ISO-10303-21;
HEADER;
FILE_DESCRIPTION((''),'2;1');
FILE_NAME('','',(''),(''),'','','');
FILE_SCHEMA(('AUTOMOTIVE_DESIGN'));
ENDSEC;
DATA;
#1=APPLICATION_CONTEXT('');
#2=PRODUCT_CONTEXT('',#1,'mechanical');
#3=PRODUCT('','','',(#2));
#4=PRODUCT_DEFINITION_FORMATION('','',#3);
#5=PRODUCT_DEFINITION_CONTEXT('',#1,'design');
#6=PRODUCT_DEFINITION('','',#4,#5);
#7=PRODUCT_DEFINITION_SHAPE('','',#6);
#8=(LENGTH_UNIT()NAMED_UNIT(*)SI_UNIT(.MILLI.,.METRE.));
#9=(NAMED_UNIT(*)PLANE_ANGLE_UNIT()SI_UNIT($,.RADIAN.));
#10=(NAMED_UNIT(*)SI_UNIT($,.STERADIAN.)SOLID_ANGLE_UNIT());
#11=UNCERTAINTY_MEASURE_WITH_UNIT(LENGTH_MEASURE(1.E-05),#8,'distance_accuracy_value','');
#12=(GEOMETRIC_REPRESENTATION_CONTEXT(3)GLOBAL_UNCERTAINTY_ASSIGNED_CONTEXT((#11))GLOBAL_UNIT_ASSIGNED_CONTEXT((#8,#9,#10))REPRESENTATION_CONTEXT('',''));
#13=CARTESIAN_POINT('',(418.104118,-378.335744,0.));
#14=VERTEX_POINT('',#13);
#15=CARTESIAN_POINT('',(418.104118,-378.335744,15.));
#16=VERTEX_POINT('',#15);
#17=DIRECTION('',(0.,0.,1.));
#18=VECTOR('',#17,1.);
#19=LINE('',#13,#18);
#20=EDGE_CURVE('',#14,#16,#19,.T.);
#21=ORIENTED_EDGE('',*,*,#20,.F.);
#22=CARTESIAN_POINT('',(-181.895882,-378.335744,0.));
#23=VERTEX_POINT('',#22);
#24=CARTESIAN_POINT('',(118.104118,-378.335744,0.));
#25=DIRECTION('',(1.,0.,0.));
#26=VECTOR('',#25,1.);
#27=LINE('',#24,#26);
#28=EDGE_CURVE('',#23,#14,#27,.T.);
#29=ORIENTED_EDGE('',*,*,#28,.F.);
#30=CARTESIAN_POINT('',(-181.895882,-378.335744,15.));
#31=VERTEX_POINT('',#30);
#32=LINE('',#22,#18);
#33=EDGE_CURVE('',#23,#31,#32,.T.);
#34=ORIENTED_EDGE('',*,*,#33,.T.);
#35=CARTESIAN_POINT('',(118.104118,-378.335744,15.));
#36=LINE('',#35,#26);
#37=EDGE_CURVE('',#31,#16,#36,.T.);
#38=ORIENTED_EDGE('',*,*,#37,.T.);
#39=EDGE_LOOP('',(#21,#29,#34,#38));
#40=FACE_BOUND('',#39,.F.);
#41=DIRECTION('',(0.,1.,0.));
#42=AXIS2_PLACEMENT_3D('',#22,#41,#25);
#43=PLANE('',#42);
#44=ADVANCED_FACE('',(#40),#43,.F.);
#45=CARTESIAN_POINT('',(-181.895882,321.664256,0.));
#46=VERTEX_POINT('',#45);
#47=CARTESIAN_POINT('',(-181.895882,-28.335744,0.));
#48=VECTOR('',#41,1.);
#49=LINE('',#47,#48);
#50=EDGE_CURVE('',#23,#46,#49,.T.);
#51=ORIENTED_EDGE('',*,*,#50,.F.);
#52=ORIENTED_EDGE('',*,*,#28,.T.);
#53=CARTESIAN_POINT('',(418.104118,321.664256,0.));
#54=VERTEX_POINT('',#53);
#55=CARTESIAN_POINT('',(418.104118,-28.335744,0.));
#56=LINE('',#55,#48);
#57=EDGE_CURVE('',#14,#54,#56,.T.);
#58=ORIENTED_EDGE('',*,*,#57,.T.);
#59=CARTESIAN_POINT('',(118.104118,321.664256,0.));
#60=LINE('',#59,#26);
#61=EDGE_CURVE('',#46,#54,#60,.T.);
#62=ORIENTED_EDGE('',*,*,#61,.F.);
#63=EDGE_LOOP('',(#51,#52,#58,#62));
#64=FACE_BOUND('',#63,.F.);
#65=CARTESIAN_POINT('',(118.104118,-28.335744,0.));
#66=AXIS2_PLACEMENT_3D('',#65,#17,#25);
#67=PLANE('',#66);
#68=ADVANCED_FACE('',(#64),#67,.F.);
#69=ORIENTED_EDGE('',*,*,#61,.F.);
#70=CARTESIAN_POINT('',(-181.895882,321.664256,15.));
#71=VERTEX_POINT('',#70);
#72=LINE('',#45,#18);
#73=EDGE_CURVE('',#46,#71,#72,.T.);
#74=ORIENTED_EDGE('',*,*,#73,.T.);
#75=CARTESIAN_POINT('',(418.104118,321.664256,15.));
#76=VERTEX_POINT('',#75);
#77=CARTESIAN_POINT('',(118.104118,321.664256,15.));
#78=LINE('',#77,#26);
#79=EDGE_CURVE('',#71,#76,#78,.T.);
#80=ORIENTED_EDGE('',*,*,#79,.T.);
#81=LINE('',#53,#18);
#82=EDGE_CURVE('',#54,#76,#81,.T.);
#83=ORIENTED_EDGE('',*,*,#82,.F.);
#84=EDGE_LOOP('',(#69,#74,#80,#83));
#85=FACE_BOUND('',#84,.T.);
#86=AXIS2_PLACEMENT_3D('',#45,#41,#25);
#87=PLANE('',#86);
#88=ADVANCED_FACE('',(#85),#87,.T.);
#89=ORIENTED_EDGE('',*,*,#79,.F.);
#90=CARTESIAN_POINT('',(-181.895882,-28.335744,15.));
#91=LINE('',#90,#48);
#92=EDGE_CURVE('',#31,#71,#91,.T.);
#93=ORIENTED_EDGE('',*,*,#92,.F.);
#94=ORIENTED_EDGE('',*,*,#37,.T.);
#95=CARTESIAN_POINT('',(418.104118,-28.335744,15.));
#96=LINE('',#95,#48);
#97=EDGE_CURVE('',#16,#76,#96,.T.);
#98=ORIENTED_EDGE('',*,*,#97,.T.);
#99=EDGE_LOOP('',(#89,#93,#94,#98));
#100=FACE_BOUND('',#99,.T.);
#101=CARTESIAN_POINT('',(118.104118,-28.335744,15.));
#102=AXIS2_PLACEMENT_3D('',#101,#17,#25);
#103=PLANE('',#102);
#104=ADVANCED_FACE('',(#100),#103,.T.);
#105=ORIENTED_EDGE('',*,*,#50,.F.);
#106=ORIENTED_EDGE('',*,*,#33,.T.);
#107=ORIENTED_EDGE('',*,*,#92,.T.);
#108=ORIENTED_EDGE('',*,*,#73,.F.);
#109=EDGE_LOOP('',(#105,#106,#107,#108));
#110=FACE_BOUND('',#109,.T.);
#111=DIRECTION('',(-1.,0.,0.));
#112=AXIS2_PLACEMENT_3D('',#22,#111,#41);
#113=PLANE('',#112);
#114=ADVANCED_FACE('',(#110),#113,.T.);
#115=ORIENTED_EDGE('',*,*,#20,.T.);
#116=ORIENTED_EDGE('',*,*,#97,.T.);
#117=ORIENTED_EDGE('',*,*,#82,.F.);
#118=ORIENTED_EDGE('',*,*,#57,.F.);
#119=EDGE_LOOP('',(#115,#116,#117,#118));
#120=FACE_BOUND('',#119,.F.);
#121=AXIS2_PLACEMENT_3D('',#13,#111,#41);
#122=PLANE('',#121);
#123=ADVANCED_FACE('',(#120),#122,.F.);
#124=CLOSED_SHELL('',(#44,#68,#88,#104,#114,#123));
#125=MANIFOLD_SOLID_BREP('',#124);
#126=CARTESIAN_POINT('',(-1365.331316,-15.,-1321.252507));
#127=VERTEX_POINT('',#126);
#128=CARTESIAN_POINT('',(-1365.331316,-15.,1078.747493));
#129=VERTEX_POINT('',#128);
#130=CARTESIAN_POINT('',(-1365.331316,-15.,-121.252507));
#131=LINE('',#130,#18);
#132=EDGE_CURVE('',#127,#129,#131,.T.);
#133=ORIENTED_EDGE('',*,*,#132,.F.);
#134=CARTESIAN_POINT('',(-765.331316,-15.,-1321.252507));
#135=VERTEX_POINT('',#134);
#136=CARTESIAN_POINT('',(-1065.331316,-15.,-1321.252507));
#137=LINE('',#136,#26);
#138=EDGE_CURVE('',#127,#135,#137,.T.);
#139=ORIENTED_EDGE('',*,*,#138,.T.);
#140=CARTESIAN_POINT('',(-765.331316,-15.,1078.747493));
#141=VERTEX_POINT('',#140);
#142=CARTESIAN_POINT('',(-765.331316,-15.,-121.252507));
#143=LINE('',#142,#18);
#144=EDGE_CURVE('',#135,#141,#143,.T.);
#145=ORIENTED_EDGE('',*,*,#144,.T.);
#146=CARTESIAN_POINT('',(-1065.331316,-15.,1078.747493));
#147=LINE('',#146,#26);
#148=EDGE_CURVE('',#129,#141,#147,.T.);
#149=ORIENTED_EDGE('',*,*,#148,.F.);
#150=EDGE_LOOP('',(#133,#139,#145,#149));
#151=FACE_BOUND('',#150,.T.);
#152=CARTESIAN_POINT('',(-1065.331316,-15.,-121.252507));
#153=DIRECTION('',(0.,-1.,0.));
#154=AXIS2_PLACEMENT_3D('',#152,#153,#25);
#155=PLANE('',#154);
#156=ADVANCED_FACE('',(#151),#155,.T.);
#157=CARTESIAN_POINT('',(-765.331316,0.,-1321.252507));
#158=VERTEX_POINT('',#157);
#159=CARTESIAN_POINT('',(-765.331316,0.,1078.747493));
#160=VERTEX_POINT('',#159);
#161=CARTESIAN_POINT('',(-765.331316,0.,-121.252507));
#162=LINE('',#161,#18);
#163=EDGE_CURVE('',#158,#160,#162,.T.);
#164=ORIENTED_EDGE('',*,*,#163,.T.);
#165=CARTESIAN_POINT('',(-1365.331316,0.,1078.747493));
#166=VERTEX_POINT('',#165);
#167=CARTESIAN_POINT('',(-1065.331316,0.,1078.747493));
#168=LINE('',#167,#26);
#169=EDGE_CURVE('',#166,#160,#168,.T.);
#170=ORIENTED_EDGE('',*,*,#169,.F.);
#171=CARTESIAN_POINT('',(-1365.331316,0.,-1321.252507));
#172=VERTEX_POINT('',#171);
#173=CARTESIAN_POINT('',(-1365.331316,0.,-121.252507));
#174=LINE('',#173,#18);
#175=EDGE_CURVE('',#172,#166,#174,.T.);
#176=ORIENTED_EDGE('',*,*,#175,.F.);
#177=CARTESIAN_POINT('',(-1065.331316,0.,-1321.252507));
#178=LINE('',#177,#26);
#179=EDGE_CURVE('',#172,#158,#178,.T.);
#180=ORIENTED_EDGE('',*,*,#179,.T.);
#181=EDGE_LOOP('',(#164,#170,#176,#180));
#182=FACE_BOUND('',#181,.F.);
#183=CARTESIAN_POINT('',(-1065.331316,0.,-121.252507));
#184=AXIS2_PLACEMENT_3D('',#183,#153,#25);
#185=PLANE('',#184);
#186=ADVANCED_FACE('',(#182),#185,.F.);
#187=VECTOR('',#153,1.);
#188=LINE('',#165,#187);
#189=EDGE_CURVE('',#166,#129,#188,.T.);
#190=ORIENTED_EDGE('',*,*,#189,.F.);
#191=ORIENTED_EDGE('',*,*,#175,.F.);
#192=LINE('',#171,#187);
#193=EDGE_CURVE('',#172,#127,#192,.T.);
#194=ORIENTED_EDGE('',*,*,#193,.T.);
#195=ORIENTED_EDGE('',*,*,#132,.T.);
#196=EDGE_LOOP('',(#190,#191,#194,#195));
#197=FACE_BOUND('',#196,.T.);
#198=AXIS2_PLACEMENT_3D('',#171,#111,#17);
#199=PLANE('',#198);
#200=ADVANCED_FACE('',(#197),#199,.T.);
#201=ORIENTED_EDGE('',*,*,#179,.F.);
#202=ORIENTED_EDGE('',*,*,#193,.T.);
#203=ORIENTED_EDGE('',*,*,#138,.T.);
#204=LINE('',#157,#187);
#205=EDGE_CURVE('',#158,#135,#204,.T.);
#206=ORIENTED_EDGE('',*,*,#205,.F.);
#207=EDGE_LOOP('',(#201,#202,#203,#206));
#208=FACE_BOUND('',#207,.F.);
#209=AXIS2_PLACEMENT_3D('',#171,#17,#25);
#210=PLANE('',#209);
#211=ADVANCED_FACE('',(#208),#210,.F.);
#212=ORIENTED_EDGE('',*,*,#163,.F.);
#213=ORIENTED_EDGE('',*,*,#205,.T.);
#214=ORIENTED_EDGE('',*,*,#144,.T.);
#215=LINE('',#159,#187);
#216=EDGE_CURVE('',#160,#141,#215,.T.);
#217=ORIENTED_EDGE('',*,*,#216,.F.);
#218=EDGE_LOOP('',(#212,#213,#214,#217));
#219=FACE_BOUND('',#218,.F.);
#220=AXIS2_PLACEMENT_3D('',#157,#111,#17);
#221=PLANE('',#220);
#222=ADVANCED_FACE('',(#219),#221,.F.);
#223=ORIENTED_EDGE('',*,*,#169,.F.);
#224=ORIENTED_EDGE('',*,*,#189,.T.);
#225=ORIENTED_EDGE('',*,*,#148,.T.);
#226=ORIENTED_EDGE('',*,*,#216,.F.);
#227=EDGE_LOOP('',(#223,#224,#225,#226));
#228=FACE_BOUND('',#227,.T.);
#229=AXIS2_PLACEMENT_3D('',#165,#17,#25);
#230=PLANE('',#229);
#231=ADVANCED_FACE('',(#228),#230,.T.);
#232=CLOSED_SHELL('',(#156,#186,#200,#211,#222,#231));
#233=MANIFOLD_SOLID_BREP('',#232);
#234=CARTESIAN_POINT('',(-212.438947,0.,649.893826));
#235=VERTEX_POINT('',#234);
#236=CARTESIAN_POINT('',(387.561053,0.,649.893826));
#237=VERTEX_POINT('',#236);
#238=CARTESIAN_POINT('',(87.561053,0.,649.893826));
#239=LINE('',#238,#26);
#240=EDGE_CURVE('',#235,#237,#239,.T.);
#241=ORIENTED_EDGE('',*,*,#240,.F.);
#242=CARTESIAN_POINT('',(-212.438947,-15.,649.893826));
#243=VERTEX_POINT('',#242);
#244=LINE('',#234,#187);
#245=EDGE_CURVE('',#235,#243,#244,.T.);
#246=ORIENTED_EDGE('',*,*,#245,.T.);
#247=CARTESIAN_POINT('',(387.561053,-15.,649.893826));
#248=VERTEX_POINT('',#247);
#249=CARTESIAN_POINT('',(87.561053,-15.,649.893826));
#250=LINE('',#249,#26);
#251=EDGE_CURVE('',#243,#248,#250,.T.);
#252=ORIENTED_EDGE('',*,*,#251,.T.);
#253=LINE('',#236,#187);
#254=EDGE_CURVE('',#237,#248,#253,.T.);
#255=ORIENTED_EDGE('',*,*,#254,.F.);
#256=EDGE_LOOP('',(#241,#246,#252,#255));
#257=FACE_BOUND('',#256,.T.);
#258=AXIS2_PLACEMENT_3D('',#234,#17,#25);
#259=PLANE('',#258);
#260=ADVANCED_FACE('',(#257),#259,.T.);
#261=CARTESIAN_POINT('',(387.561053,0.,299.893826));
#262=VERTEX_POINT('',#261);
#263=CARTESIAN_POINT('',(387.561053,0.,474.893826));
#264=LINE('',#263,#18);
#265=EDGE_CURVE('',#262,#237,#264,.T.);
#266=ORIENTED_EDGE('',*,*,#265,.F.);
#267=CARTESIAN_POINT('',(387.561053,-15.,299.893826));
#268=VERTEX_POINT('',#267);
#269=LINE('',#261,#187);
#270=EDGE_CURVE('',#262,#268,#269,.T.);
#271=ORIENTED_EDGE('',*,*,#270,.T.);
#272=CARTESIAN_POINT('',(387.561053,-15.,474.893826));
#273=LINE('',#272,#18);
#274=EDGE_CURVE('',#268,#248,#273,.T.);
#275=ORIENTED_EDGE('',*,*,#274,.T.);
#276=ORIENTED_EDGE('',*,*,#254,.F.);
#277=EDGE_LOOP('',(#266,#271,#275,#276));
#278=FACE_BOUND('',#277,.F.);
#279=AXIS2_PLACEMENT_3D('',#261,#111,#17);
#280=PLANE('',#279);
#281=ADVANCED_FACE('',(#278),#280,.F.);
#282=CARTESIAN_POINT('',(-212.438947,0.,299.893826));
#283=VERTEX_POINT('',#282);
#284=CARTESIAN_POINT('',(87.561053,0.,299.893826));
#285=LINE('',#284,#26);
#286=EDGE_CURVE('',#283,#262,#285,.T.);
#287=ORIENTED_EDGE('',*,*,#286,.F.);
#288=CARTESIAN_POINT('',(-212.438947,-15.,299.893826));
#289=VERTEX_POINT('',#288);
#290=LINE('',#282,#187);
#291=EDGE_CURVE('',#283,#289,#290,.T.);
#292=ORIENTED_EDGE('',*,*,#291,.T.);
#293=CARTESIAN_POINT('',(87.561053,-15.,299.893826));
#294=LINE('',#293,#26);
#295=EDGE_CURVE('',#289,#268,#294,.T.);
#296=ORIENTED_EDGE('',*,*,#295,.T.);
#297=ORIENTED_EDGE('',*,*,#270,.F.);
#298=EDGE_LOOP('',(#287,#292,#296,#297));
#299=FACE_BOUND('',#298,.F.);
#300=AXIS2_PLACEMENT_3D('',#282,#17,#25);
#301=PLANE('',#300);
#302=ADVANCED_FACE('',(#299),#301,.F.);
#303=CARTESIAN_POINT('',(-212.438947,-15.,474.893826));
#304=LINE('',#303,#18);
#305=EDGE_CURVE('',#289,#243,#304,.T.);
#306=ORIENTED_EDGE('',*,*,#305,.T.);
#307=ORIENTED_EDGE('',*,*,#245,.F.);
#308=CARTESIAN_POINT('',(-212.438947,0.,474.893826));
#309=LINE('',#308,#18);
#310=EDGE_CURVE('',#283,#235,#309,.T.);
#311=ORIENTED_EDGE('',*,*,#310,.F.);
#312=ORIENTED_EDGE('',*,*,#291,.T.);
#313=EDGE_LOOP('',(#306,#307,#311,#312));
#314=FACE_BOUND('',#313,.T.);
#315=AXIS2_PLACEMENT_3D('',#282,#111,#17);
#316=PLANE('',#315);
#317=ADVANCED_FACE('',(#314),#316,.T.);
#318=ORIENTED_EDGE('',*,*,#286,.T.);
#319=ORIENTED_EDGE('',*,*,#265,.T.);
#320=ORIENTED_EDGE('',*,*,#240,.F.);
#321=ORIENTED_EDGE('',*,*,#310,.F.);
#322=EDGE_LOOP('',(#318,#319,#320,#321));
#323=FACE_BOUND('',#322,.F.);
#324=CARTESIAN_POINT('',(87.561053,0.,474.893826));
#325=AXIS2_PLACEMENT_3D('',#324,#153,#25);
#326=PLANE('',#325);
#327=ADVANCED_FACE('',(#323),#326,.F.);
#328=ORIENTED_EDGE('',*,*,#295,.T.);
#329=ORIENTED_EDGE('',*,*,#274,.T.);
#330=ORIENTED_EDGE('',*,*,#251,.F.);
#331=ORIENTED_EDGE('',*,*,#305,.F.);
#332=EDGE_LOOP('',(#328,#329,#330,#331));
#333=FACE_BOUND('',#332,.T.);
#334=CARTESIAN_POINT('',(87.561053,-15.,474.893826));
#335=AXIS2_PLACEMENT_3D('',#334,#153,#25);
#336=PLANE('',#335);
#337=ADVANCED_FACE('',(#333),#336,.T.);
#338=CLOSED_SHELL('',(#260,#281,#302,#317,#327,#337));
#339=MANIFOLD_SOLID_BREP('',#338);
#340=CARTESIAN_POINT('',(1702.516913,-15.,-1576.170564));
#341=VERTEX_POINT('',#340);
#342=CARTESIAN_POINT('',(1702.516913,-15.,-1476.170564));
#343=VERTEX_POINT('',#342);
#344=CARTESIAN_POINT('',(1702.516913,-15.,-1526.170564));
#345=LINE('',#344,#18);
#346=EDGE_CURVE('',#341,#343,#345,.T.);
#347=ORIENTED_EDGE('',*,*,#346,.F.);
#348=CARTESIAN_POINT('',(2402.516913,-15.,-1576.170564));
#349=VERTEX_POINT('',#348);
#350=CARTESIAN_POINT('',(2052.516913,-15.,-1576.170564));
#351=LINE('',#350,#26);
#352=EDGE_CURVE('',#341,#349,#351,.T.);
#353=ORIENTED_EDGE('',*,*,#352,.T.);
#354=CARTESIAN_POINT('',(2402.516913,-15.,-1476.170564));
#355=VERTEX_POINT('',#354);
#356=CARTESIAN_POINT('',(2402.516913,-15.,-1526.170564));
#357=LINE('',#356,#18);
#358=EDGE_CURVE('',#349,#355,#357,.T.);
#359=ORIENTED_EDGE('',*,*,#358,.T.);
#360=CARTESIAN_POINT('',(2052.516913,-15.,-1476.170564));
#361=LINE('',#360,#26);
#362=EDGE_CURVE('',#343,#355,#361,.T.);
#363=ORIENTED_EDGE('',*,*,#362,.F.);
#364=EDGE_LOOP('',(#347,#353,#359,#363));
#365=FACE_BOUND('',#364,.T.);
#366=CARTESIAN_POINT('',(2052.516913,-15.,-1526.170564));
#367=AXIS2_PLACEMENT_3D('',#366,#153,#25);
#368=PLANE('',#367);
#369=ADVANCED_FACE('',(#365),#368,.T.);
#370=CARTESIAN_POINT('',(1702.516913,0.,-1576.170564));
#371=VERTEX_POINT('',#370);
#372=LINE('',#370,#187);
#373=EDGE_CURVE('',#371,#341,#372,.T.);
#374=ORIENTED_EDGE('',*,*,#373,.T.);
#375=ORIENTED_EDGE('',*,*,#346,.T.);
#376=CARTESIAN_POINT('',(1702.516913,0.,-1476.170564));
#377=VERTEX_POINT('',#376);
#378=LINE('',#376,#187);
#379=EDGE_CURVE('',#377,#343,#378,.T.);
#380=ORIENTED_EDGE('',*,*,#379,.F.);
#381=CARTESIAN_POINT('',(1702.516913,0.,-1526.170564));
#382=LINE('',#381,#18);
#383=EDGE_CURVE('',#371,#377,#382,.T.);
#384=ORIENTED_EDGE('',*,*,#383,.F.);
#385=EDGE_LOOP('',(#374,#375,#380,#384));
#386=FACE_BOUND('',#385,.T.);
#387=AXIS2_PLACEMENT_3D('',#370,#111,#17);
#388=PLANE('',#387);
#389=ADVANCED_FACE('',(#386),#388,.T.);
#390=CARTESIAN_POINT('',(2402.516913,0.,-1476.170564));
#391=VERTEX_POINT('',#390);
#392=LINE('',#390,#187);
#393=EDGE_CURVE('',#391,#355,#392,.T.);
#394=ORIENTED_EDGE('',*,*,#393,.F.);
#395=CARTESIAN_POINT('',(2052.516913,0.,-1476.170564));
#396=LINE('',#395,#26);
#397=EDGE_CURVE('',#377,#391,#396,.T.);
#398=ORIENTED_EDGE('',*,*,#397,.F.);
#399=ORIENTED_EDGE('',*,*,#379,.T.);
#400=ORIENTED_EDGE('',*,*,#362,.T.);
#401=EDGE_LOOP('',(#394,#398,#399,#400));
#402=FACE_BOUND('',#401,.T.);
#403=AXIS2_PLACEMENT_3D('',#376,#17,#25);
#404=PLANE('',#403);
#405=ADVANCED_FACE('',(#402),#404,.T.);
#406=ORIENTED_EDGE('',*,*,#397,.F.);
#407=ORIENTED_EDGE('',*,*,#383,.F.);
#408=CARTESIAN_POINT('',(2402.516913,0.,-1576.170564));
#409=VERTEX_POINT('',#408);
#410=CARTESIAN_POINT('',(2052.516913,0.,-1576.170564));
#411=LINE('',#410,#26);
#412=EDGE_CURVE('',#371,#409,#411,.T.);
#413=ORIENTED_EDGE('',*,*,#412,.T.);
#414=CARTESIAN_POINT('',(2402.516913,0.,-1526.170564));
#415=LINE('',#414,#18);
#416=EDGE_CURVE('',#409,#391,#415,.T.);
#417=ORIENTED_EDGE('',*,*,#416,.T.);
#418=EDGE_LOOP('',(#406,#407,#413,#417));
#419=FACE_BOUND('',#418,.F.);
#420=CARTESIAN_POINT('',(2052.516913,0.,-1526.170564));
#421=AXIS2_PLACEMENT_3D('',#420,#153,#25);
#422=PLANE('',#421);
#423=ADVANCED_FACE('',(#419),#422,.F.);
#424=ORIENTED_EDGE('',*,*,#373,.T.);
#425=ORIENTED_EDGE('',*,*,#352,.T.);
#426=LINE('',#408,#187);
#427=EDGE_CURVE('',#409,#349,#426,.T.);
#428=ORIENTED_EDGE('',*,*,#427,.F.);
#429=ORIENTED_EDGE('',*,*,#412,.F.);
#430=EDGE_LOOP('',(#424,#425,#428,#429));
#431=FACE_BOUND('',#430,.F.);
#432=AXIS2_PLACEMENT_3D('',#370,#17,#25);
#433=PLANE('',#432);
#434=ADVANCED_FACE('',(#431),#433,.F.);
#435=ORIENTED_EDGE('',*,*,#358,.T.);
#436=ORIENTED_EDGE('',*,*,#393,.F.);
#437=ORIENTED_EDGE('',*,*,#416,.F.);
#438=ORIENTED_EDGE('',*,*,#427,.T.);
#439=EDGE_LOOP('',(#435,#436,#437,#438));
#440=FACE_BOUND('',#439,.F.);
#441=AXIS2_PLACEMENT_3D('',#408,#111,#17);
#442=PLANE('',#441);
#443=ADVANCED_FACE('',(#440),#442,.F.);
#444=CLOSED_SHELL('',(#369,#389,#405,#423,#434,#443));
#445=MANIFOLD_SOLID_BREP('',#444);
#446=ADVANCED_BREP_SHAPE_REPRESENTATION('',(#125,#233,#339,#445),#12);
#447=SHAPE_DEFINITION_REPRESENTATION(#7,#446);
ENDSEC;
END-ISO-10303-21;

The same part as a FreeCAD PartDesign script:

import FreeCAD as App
import Part
import Sketcher
from FreeCAD import Vector
Q = App.Units.Quantity


def add_polygon(sketch, points):
    """Adds a closed chain of lines whose ends are joined by coincident constraints."""
    first, n = sketch.GeometryCount, len(points)
    for a, b in zip(points, points[1:] + points[:1]):
        sketch.addGeometry(Part.LineSegment(App.Vector(*a, 0), App.Vector(*b, 0)), False)
    for i in range(n):
        sketch.addConstraint(Sketcher.Constraint("Coincident", first + i, 2, first + (i + 1) % n, 1))

doc = App.newDocument("Part")
params = doc.addObject("Spreadsheet::Sheet", "Params")
for row, (alias, value) in enumerate([
    ("sketch1_width", "600 mm"),
    ("sketch1_height", "2400 mm"),
    ("pad1_length", "15 mm"),
    ("sketch2_width", "600 mm"),
    ("sketch2_height", "700 mm"),
    ("pad2_length", "15 mm"),
    ("sketch3_width", "700 mm"),
    ("sketch3_height", "100 mm"),
    ("pad3_length", "15 mm"),
    ("sketch4_width", "600 mm"),
    ("sketch4_height", "350 mm"),
    ("pad4_length", "15 mm"),
], start=1):
    params.set(f"A{row}", alias)
    params.set(f"B{row}", "=" + value)
    params.setAlias(f"B{row}", alias)

body = doc.addObject("PartDesign::Body", "Body")

# Sketch on XZ plane
sketch1 = doc.addObject("Sketcher::SketchObject", "Sketch")
body.addObject(sketch1)
sketch1.AttachmentSupport = (doc.XZ_Plane, [""])
sketch1.MapMode = "FlatFace"
add_polygon(sketch1, [(-1365, 1079), (-1365, -1321), (-765, -1321), (-765, 1079)])  # lines 0-3
sketch1.addConstraint([
    Sketcher.Constraint("Vertical", 0),
    Sketcher.Constraint("Horizontal", 1),
    Sketcher.Constraint("Vertical", 2),
    Sketcher.Constraint("Horizontal", 3),
    Sketcher.Constraint("DistanceX", 1, 1, 1, 2, Q("600 mm")),
    Sketcher.Constraint("DistanceY", 0, 2, 0, 1, Q("2400 mm")),
    Sketcher.Constraint("DistanceX", 0, 2, -1, 1, Q("1365.331316 mm")),
    Sketcher.Constraint("DistanceY", 0, 2, -1, 1, Q("1321.252507 mm")),
])
sketch1.setExpression("Constraints[8]", "Params.sketch1_width")
sketch1.setExpression("Constraints[9]", "Params.sketch1_height")
pad1 = doc.addObject("PartDesign::Pad", "Pad")
body.addObject(pad1)
pad1.Profile = sketch1
pad1.setExpression("Length", "Params.pad1_length")
body2 = doc.addObject("PartDesign::Body", "Body001")

# Sketch on XY plane
sketch2 = doc.addObject("Sketcher::SketchObject", "Sketch001")
body2.addObject(sketch2)
sketch2.AttachmentSupport = (doc.getObject("XY_Plane001"), [""])
sketch2.MapMode = "FlatFace"
add_polygon(sketch2, [(-182, 322), (-182, -378), (418, -378), (418, 322)])  # lines 0-3
sketch2.addConstraint([
    Sketcher.Constraint("Vertical", 0),
    Sketcher.Constraint("Horizontal", 1),
    Sketcher.Constraint("Vertical", 2),
    Sketcher.Constraint("Horizontal", 3),
    Sketcher.Constraint("DistanceX", 1, 1, 1, 2, Q("600 mm")),
    Sketcher.Constraint("DistanceY", 0, 2, 0, 1, Q("700 mm")),
    Sketcher.Constraint("DistanceX", 0, 2, -1, 1, Q("181.895882 mm")),
    Sketcher.Constraint("DistanceY", 0, 2, -1, 1, Q("378.335744 mm")),
])
sketch2.setExpression("Constraints[8]", "Params.sketch2_width")
sketch2.setExpression("Constraints[9]", "Params.sketch2_height")
pad2 = doc.addObject("PartDesign::Pad", "Pad001")
body2.addObject(pad2)
pad2.Profile = sketch2
pad2.setExpression("Length", "Params.pad2_length")
body3 = doc.addObject("PartDesign::Body", "Body002")

# Sketch on XZ plane
sketch3 = doc.addObject("Sketcher::SketchObject", "Sketch002")
body3.addObject(sketch3)
sketch3.AttachmentSupport = (doc.getObject("XZ_Plane002"), [""])
sketch3.MapMode = "FlatFace"
add_polygon(sketch3, [(1703, -1476), (1703, -1576), (2403, -1576), (2403, -1476)])  # lines 0-3
sketch3.addConstraint([
    Sketcher.Constraint("Vertical", 0),
    Sketcher.Constraint("Horizontal", 1),
    Sketcher.Constraint("Vertical", 2),
    Sketcher.Constraint("Horizontal", 3),
    Sketcher.Constraint("DistanceX", 1, 1, 1, 2, Q("700 mm")),
    Sketcher.Constraint("DistanceY", 0, 2, 0, 1, Q("100 mm")),
    Sketcher.Constraint("DistanceX", -1, 1, 0, 2, Q("1702.516913 mm")),
    Sketcher.Constraint("DistanceY", 0, 2, -1, 1, Q("1576.170564 mm")),
])
sketch3.setExpression("Constraints[8]", "Params.sketch3_width")
sketch3.setExpression("Constraints[9]", "Params.sketch3_height")
pad3 = doc.addObject("PartDesign::Pad", "Pad002")
body3.addObject(pad3)
pad3.Profile = sketch3
pad3.setExpression("Length", "Params.pad3_length")
body4 = doc.addObject("PartDesign::Body", "Body003")

# Sketch on XZ plane
sketch4 = doc.addObject("Sketcher::SketchObject", "Sketch003")
body4.addObject(sketch4)
sketch4.AttachmentSupport = (doc.getObject("XZ_Plane003"), [""])
sketch4.MapMode = "FlatFace"
add_polygon(sketch4, [(-212, 650), (-212, 300), (388, 300), (388, 650)])  # lines 0-3
sketch4.addConstraint([
    Sketcher.Constraint("Vertical", 0),
    Sketcher.Constraint("Horizontal", 1),
    Sketcher.Constraint("Vertical", 2),
    Sketcher.Constraint("Horizontal", 3),
    Sketcher.Constraint("DistanceX", 1, 1, 1, 2, Q("600 mm")),
    Sketcher.Constraint("DistanceY", 0, 2, 0, 1, Q("350 mm")),
    Sketcher.Constraint("DistanceX", 0, 2, -1, 1, Q("212.438947 mm")),
    Sketcher.Constraint("DistanceY", -1, 1, 0, 2, Q("299.893826 mm")),
])
sketch4.setExpression("Constraints[8]", "Params.sketch4_width")
sketch4.setExpression("Constraints[9]", "Params.sketch4_height")
pad4 = doc.addObject("PartDesign::Pad", "Pad003")
body4.addObject(pad4)
pad4.Profile = sketch4
pad4.setExpression("Length", "Params.pad4_length")

doc.recompute()
